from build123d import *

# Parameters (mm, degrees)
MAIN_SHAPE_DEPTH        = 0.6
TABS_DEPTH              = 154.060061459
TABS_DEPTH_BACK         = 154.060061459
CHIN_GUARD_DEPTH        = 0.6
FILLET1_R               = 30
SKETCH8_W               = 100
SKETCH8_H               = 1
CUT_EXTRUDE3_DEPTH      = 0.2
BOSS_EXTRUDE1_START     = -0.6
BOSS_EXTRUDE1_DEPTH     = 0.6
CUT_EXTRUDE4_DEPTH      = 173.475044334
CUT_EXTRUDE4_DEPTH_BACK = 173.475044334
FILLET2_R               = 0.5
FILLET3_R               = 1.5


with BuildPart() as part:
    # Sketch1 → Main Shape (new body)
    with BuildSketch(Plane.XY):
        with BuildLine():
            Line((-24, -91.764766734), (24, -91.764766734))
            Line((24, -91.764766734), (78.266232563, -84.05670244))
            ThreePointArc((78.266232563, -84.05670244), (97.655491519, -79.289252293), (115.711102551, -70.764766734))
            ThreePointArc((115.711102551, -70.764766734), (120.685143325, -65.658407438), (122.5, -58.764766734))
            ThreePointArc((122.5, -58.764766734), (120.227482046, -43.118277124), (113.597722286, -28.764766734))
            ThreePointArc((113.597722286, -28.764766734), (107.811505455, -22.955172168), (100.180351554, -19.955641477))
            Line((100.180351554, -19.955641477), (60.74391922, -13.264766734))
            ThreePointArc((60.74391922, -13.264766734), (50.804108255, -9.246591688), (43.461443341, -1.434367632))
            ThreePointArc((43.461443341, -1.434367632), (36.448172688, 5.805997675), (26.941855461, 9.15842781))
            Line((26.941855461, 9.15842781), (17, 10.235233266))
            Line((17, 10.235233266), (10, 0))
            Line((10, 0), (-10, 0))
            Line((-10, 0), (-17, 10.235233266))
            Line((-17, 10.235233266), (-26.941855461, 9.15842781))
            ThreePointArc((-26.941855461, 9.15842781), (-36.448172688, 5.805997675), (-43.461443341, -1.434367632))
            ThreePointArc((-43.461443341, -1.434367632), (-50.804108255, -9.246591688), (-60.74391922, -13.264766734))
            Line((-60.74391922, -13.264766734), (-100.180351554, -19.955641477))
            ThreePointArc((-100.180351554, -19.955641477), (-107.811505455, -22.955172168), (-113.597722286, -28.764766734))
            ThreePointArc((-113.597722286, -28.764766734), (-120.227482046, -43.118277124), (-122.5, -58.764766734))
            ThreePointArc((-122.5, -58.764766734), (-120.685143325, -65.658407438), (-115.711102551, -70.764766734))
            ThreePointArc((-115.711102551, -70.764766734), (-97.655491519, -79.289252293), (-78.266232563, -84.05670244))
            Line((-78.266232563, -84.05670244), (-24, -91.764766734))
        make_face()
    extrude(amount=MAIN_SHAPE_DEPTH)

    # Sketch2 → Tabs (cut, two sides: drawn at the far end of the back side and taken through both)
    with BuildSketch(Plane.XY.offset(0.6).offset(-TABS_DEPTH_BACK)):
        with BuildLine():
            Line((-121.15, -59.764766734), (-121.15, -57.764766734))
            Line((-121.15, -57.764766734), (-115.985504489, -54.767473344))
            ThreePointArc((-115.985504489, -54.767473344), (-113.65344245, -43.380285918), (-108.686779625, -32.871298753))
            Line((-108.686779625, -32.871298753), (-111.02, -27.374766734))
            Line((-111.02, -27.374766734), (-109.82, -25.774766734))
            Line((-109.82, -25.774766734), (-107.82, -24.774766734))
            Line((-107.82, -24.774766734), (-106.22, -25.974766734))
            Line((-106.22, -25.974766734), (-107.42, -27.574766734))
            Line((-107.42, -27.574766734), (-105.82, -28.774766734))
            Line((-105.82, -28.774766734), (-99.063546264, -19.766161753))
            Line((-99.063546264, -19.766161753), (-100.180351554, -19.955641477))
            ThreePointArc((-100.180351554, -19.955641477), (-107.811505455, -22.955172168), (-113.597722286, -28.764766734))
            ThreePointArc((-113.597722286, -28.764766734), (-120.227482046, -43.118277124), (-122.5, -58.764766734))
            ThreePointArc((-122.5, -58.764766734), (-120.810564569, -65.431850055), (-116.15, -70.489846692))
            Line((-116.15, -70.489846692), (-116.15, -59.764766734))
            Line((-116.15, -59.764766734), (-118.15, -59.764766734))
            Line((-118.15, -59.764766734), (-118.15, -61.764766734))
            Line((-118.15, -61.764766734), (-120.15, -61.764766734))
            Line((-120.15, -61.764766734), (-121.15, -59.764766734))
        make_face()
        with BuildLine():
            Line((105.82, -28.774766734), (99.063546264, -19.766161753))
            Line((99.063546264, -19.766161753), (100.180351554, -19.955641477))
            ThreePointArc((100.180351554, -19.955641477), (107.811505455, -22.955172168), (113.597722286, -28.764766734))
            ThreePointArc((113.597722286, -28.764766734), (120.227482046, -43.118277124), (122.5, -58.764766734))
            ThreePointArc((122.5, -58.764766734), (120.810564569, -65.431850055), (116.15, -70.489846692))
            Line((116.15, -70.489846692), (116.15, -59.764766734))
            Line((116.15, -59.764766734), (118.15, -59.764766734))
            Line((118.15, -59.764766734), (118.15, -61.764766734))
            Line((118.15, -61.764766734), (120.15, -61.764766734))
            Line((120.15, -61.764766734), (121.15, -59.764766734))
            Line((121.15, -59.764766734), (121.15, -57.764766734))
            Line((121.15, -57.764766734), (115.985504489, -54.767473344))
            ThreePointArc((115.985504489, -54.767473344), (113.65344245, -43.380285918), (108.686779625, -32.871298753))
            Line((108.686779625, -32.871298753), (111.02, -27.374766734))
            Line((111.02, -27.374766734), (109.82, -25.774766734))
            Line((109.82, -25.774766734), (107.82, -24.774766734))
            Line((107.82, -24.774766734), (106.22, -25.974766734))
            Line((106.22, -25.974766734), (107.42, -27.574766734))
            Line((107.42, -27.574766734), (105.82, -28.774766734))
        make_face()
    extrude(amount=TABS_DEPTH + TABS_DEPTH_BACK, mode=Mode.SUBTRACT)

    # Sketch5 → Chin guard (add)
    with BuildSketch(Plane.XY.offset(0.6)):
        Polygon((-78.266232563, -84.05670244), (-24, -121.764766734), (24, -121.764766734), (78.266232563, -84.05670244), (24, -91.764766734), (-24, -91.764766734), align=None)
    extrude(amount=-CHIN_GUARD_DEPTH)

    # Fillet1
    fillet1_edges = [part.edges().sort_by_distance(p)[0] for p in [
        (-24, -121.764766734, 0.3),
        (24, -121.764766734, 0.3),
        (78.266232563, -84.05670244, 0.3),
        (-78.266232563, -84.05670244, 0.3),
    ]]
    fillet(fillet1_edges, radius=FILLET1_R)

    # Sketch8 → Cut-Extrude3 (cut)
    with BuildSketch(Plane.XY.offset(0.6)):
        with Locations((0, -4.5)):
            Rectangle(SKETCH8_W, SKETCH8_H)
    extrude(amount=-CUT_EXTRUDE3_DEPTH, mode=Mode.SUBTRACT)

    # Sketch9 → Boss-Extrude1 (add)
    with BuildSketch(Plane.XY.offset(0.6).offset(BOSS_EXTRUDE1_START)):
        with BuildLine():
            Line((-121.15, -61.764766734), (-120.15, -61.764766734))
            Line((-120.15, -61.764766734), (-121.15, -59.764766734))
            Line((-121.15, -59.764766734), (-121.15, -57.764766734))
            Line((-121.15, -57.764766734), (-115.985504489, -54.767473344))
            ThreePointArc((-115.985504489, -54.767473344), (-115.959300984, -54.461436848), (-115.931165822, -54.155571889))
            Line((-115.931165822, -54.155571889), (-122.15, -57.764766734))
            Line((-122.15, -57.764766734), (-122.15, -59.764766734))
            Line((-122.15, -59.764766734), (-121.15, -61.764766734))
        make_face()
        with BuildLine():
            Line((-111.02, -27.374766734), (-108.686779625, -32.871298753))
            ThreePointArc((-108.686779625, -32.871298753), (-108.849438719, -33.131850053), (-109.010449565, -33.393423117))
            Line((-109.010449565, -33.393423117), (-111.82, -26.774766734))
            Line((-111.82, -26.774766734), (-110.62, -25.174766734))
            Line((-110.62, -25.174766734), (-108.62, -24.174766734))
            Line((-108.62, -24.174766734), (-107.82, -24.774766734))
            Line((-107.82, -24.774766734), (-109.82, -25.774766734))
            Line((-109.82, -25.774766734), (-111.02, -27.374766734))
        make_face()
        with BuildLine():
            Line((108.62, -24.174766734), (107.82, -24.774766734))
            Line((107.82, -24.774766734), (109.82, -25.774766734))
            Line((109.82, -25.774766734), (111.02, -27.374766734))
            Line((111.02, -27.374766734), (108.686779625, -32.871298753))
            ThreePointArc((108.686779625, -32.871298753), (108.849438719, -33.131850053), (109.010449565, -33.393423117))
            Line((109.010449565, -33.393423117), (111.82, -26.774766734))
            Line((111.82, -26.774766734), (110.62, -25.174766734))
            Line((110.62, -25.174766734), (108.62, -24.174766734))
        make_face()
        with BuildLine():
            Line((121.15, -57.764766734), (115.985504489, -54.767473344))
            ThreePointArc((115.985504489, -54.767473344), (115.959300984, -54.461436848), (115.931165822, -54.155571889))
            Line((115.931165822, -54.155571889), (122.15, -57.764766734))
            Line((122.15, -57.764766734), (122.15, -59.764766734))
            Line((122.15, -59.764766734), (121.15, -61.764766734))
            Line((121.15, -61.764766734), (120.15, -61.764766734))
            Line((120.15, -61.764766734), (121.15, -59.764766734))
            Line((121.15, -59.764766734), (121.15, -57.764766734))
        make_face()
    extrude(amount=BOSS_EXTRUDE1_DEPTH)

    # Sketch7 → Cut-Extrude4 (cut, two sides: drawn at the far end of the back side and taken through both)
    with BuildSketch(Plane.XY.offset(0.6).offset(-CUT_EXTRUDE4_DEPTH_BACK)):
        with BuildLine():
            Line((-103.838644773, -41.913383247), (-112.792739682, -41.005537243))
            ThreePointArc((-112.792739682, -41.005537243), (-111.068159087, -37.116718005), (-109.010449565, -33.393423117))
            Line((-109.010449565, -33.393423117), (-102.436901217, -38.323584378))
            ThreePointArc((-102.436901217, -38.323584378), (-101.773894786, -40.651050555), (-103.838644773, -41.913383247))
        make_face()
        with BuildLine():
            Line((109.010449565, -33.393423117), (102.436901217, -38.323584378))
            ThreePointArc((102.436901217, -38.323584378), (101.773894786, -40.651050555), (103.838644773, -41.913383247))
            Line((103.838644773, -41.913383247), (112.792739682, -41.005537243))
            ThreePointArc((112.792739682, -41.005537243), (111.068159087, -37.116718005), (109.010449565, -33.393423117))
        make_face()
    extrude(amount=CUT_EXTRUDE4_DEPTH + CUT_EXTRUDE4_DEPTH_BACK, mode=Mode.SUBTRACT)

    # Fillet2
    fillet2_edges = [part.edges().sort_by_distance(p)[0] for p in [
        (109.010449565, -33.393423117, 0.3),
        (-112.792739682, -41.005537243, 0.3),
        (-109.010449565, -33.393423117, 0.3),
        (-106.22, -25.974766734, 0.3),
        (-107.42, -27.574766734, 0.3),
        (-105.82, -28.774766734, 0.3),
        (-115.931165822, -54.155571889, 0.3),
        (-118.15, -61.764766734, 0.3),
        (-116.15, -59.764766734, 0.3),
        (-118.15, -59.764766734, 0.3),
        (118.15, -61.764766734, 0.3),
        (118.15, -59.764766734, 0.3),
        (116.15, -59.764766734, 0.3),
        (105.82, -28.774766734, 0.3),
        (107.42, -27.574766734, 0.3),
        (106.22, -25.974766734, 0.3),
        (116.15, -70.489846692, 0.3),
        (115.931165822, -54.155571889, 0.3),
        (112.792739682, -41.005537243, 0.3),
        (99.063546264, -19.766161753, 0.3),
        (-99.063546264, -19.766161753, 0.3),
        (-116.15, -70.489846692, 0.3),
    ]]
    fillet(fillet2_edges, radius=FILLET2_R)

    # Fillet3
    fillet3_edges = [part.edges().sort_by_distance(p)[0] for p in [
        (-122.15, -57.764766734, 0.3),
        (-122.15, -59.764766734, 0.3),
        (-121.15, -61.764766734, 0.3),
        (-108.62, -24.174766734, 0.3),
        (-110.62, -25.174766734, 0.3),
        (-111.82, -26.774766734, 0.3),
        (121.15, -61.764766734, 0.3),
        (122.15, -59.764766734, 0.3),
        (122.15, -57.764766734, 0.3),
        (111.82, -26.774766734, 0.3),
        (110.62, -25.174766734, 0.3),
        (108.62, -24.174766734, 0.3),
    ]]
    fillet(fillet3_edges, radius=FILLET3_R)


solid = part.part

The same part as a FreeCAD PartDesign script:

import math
import FreeCAD as App
import Part
import Sketcher
from FreeCAD import Vector


def edges_at(feature, points):
    """Names of the edges that pass closest to the given points."""
    edges = feature.Shape.Edges
    near = lambda p: min(range(len(edges)), key=lambda i: edges[i].distToShape(Part.Vertex(*p))[0])
    return sorted({f"Edge{near(p) + 1}" for p in points})

doc = App.newDocument("Part")
body = doc.addObject("PartDesign::Body", "Body")

sketch1 = body.newObject("Sketcher::SketchObject", "Sketch")
sketch1.AttachmentSupport = (doc.getObject("XY_Plane"), [""])
sketch1.MapMode = "FlatFace"
sketch1.addGeometry(Part.LineSegment(Vector(-24, -92, 0), Vector(24, -92, 0)), False)
sketch1.addGeometry(Part.LineSegment(Vector(24, -92, 0), Vector(78, -84, 0)), False)
sketch1.addGeometry(Part.ArcOfCircle(Part.Circle(Vector(64, 15, 0), Vector(0, 0, 1), 100), math.radians(-82), math.radians(-59)), False)
sketch1.addGeometry(Part.ArcOfCircle(Part.Circle(Vector(109, -59, 0), Vector(0, 0, 1), 14), math.radians(-59), math.radians(0)), False)
sketch1.addGeometry(Part.ArcOfCircle(Part.Circle(Vector(68, -59, 0), Vector(0, 0, 1), 55), math.radians(0), math.radians(33)), False)
sketch1.addGeometry(Part.ArcOfCircle(Part.Circle(Vector(97, -40, 0), Vector(0, 0, 1), 20), math.radians(33), math.radians(80)), False)
sketch1.addGeometry(Part.LineSegment(Vector(100, -20, 0), Vector(61, -13, 0)), False)
sketch1.addGeometry(Part.ArcOfCircle(Part.Circle(Vector(65, 11, 0), Vector(0, 0, 1), 25), math.radians(-149), math.radians(-100)), False)
sketch1.addGeometry(Part.ArcOfCircle(Part.Circle(Vector(25, -13, 0), Vector(0, 0, 1), 22), math.radians(31), math.radians(84)), False)
sketch1.addGeometry(Part.LineSegment(Vector(27, 9, 0), Vector(17, 10, 0)), False)
sketch1.addGeometry(Part.LineSegment(Vector(17, 10, 0), Vector(10, 0, 0)), False)
sketch1.addGeometry(Part.LineSegment(Vector(10, 0, 0), Vector(-10, 0, 0)), False)
sketch1.addGeometry(Part.LineSegment(Vector(-10, 0, 0), Vector(-17, 10, 0)), False)
sketch1.addGeometry(Part.LineSegment(Vector(-17, 10, 0), Vector(-27, 9, 0)), False)
sketch1.addGeometry(Part.ArcOfCircle(Part.Circle(Vector(-25, -13, 0), Vector(0, 0, 1), 22), math.radians(96), math.radians(149)), False)
sketch1.addGeometry(Part.ArcOfCircle(Part.Circle(Vector(-65, 11, 0), Vector(0, 0, 1), 25), math.radians(-80), math.radians(-31)), False)
sketch1.addGeometry(Part.LineSegment(Vector(-61, -13, 0), Vector(-100, -20, 0)), False)
sketch1.addGeometry(Part.ArcOfCircle(Part.Circle(Vector(-97, -40, 0), Vector(0, 0, 1), 20), math.radians(100), math.radians(147)), False)
sketch1.addGeometry(Part.ArcOfCircle(Part.Circle(Vector(-68, -59, 0), Vector(0, 0, 1), 55), math.radians(147), math.radians(180)), False)
sketch1.addGeometry(Part.ArcOfCircle(Part.Circle(Vector(-109, -59, 0), Vector(0, 0, 1), 14), math.radians(180), math.radians(239)), False)
sketch1.addGeometry(Part.ArcOfCircle(Part.Circle(Vector(-64, 15, 0), Vector(0, 0, 1), 100), math.radians(-121), math.radians(-98)), False)
sketch1.addGeometry(Part.LineSegment(Vector(-78, -84, 0), Vector(-24, -92, 0)), False)
sketch1.addConstraint(Sketcher.Constraint("Coincident", 0, 2, 1, 1))
sketch1.addConstraint(Sketcher.Constraint("Tangent", 1, 2, 2, 1))
sketch1.addConstraint(Sketcher.Constraint("Tangent", 2, 2, 3, 1))
sketch1.addConstraint(Sketcher.Constraint("Tangent", 3, 2, 4, 1))
sketch1.addConstraint(Sketcher.Constraint("Tangent", 4, 2, 5, 1))
sketch1.addConstraint(Sketcher.Constraint("Tangent", 5, 2, 6, 1))
sketch1.addConstraint(Sketcher.Constraint("Tangent", 6, 2, 7, 2))
sketch1.addConstraint(Sketcher.Constraint("Tangent", 7, 1, 8, 1))
sketch1.addConstraint(Sketcher.Constraint("Tangent", 8, 2, 9, 1))
sketch1.addConstraint(Sketcher.Constraint("Coincident", 9, 2, 10, 1))
sketch1.addConstraint(Sketcher.Constraint("Coincident", 10, 2, 11, 1))
sketch1.addConstraint(Sketcher.Constraint("Coincident", 11, 2, 12, 1))
sketch1.addConstraint(Sketcher.Constraint("Coincident", 12, 2, 13, 1))
sketch1.addConstraint(Sketcher.Constraint("Tangent", 13, 2, 14, 1))
sketch1.addConstraint(Sketcher.Constraint("Tangent", 14, 2, 15, 2))
sketch1.addConstraint(Sketcher.Constraint("Tangent", 15, 1, 16, 1))
sketch1.addConstraint(Sketcher.Constraint("Tangent", 16, 2, 17, 1))
sketch1.addConstraint(Sketcher.Constraint("Tangent", 17, 2, 18, 1))
sketch1.addConstraint(Sketcher.Constraint("Tangent", 18, 2, 19, 1))
sketch1.addConstraint(Sketcher.Constraint("Tangent", 19, 2, 20, 1))
sketch1.addConstraint(Sketcher.Constraint("Tangent", 20, 2, 21, 1))
sketch1.addConstraint(Sketcher.Constraint("Coincident", 21, 2, 0, 1))
sketch1.addConstraint(Sketcher.Constraint("Horizontal", 0))
sketch1.addConstraint(Sketcher.Constraint("Horizontal", 11))
sketch1.addConstraint(Sketcher.Constraint("Equal", 8, 14))
sketch1.addConstraint(Sketcher.Constraint("Equal", 7, 15))
sketch1.addConstraint(Sketcher.Constraint("Equal", 5, 17))
sketch1.addConstraint(Sketcher.Constraint("Equal", 4, 18))
sketch1.addConstraint(Sketcher.Constraint("Equal", 3, 19))
sketch1.addConstraint(Sketcher.Constraint("Equal", 2, 20))
sketch1.addConstraint(Sketcher.Constraint("Symmetric", 10, 2, 11, 2, -1, 1))
sketch1.addConstraint(Sketcher.Constraint("Symmetric", 8, 3, 14, 3, -2))
sketch1.addConstraint(Sketcher.Constraint("Symmetric", 5, 3, 17, 3, -2))
sketch1.addConstraint(Sketcher.Constraint("Symmetric", 3, 3, 19, 3, -2))
sketch1.addConstraint(Sketcher.Constraint("Symmetric", 9, 2, 12, 2, -2))
sketch1.addConstraint(Sketcher.Constraint("Symmetric", 1, 2, 20, 2, -2))
sketch1.addConstraint(Sketcher.Constraint("Horizontal", 3, 3, 4, 3))
sketch1.addConstraint(Sketcher.Constraint("Horizontal", 7, 3, 15, 3))
sketch1.addConstraint(Sketcher.Constraint("Radius", 2, 100.0))
sketch1.addConstraint(Sketcher.Constraint("Radius", 3, 14.0))
sketch1.addConstraint(Sketcher.Constraint("Radius", 4, 55.0))
sketch1.addConstraint(Sketcher.Constraint("Radius", 5, 20.0))
sketch1.addConstraint(Sketcher.Constraint("Radius", 7, 25.0))
sketch1.addConstraint(Sketcher.Constraint("Radius", 8, 22.0))
sketch1.addConstraint(Sketcher.Constraint("DistanceX", 0, 1, 0, 2, 48.0))
sketch1.addConstraint(Sketcher.Constraint("DistanceX", 11, 2, 11, 1, 20.0))
sketch1.addConstraint(Sketcher.Constraint("Distance", 6, 40.0))
sketch1.addConstraint(Sketcher.Constraint("Distance", 9, 10.0))
sketch1.addConstraint(Sketcher.Constraint("DistanceX", -1, 1, 9, 2, 17.0))
sketch1.addConstraint(Sketcher.Constraint("DistanceX", 18, 3, 4, 3, 135.0))
sketch1.addConstraint(Sketcher.Constraint("DistanceY", 0, 2, 4, 3, 33.0))
sketch1.addConstraint(Sketcher.Constraint("DistanceY", 3, 3, 4, 2, 30.0))
sketch1.addConstraint(Sketcher.Constraint("DistanceY", 19, 2, 19, 3, 12.0))
sketch1.addConstraint(Sketcher.Constraint("Distance", 10, 12.4))
sketch1.addConstraint(Sketcher.Constraint("DistanceY", 17, 2, 15, 1, 15.5))
sketch1.addConstraint(Sketcher.Constraint("DistanceX", 14, 3, 7, 3, 89.498599))
pad1 = body.newObject("PartDesign::Pad", "Pad")
pad1.Profile = sketch1
pad1.Length = 0.6

sketch2 = body.newObject("Sketcher::SketchObject", "Sketch001")
sketch2.AttachmentSupport = (doc.getObject("XY_Plane"), [""])
sketch2.MapMode = "FlatFace"
sketch2.AttachmentOffset = App.Placement(Vector(0, 0, 0.6), App.Rotation())
sketch2.addGeometry(Part.LineSegment(Vector(-121.2, -59.8, 0), Vector(-121.2, -57.8, 0)), False)
sketch2.addGeometry(Part.LineSegment(Vector(-121.2, -57.8, 0), Vector(-116, -54.8, 0)), False)
sketch2.addGeometry(Part.ArcOfCircle(Part.Circle(Vector(-67.5, -58.8, 0), Vector(0, 0, 1), 48.7), math.radians(148), math.radians(175)), False)
sketch2.addGeometry(Part.LineSegment(Vector(-108.7, -32.9, 0), Vector(-111, -27.4, 0)), False)
sketch2.addGeometry(Part.LineSegment(Vector(-111, -27.4, 0), Vector(-109.8, -25.8, 0)), False)
sketch2.addGeometry(Part.LineSegment(Vector(-109.8, -25.8, 0), Vector(-107.8, -24.8, 0)), False)
sketch2.addGeometry(Part.LineSegment(Vector(-107.8, -24.8, 0), Vector(-106.2, -26, 0)), False)
sketch2.addGeometry(Part.LineSegment(Vector(-106.2, -26, 0), Vector(-107.4, -27.6, 0)), False)
sketch2.addGeometry(Part.LineSegment(Vector(-107.4, -27.6, 0), Vector(-105.8, -28.8, 0)), False)
sketch2.addGeometry(Part.LineSegment(Vector(-105.8, -28.8, 0), Vector(-99.1, -19.8, 0)), False)
sketch2.addGeometry(Part.LineSegment(Vector(-99.1, -19.8, 0), Vector(-100.2, -20, 0)), False)
sketch2.addGeometry(Part.ArcOfCircle(Part.Circle(Vector(-96.8, -39.7, 0), Vector(0, 0, 1), 20), math.radians(100), math.radians(147)), False)
sketch2.addGeometry(Part.ArcOfCircle(Part.Circle(Vector(-67.5, -58.8, 0), Vector(0, 0, 1), 55), math.radians(147), math.radians(180)), False)
sketch2.addGeometry(Part.ArcOfCircle(Part.Circle(Vector(-108.5, -58.8, 0), Vector(0, 0, 1), 14), math.radians(180), math.radians(237)), False)
sketch2.addGeometry(Part.LineSegment(Vector(-116.2, -70.5, 0), Vector(-116.2, -59.8, 0)), False)
sketch2.addGeometry(Part.LineSegment(Vector(-116.2, -59.8, 0), Vector(-118.2, -59.8, 0)), False)
sketch2.addGeometry(Part.LineSegment(Vector(-118.2, -59.8, 0), Vector(-118.2, -61.8, 0)), False)
sketch2.addGeometry(Part.LineSegment(Vector(-118.2, -61.8, 0), Vector(-120.2, -61.8, 0)), False)
sketch2.addGeometry(Part.LineSegment(Vector(-120.2, -61.8, 0), Vector(-121.2, -59.8, 0)), False)
sketch2.addGeometry(Part.LineSegment(Vector(99.1, -19.8, 0), Vector(105.8, -28.8, 0)), False)
sketch2.addGeometry(Part.LineSegment(Vector(105.8, -28.8, 0), Vector(107.4, -27.6, 0)), False)
sketch2.addGeometry(Part.LineSegment(Vector(107.4, -27.6, 0), Vector(106.2, -26, 0)), False)
sketch2.addGeometry(Part.LineSegment(Vector(106.2, -26, 0), Vector(107.8, -24.8, 0)), False)
sketch2.addGeometry(Part.LineSegment(Vector(107.8, -24.8, 0), Vector(109.8, -25.8, 0)), False)
sketch2.addGeometry(Part.LineSegment(Vector(109.8, -25.8, 0), Vector(111, -27.4, 0)), False)
sketch2.addGeometry(Part.LineSegment(Vector(111, -27.4, 0), Vector(108.7, -32.9, 0)), False)
sketch2.addGeometry(Part.ArcOfCircle(Part.Circle(Vector(67.5, -58.8, 0), Vector(0, 0, 1), 48.7), math.radians(5), math.radians(32)), False)
sketch2.addGeometry(Part.LineSegment(Vector(116, -54.8, 0), Vector(121.2, -57.8, 0)), False)
sketch2.addGeometry(Part.LineSegment(Vector(121.2, -57.8, 0), Vector(121.2, -59.8, 0)), False)
sketch2.addGeometry(Part.LineSegment(Vector(121.2, -59.8, 0), Vector(120.2, -61.8, 0)), False)
sketch2.addGeometry(Part.LineSegment(Vector(120.2, -61.8, 0), Vector(118.2, -61.8, 0)), False)
sketch2.addGeometry(Part.LineSegment(Vector(118.2, -61.8, 0), Vector(118.2, -59.8, 0)), False)
sketch2.addGeometry(Part.LineSegment(Vector(118.2, -59.8, 0), Vector(116.2, -59.8, 0)), False)
sketch2.addGeometry(Part.LineSegment(Vector(116.2, -59.8, 0), Vector(116.2, -70.5, 0)), False)
sketch2.addGeometry(Part.ArcOfCircle(Part.Circle(Vector(108.5, -58.8, 0), Vector(0, 0, 1), 14), math.radians(-57), math.radians(0)), False)
sketch2.addGeometry(Part.ArcOfCircle(Part.Circle(Vector(67.5, -58.8, 0), Vector(0, 0, 1), 55), math.radians(0), math.radians(33)), False)
sketch2.addGeometry(Part.ArcOfCircle(Part.Circle(Vector(96.8, -39.7, 0), Vector(0, 0, 1), 20), math.radians(33), math.radians(80)), False)
sketch2.addGeometry(Part.LineSegment(Vector(100.2, -20, 0), Vector(99.1, -19.8, 0)), False)
sketch2.addConstraint(Sketcher.Constraint("Coincident", 0, 2, 1, 1))
sketch2.addConstraint(Sketcher.Constraint("Coincident", 1, 2, 2, 2))
sketch2.addConstraint(Sketcher.Constraint("Coincident", 2, 1, 3, 1))
sketch2.addConstraint(Sketcher.Constraint("Coincident", 3, 2, 4, 1))
sketch2.addConstraint(Sketcher.Constraint("Coincident", 4, 2, 5, 1))
sketch2.addConstraint(Sketcher.Constraint("Coincident", 5, 2, 6, 1))
sketch2.addConstraint(Sketcher.Constraint("Coincident", 6, 2, 7, 1))
sketch2.addConstraint(Sketcher.Constraint("Coincident", 7, 2, 8, 1))
sketch2.addConstraint(Sketcher.Constraint("Coincident", 8, 2, 9, 1))
sketch2.addConstraint(Sketcher.Constraint("Coincident", 9, 2, 10, 1))
sketch2.addConstraint(Sketcher.Constraint("Tangent", 10, 2, 11, 1))
sketch2.addConstraint(Sketcher.Constraint("Tangent", 11, 2, 12, 1))
sketch2.addConstraint(Sketcher.Constraint("Tangent", 12, 2, 13, 1))
sketch2.addConstraint(Sketcher.Constraint("Coincident", 13, 2, 14, 1))
sketch2.addConstraint(Sketcher.Constraint("Coincident", 14, 2, 15, 1))
sketch2.addConstraint(Sketcher.Constraint("Coincident", 15, 2, 16, 1))
sketch2.addConstraint(Sketcher.Constraint("Coincident", 16, 2, 17, 1))
sketch2.addConstraint(Sketcher.Constraint("Coincident", 17, 2, 18, 1))
sketch2.addConstraint(Sketcher.Constraint("Coincident", 18, 2, 0, 1))
sketch2.addConstraint(Sketcher.Constraint("Coincident", 19, 2, 20, 1))
sketch2.addConstraint(Sketcher.Constraint("Coincident", 20, 2, 21, 1))
sketch2.addConstraint(Sketcher.Constraint("Coincident", 21, 2, 22, 1))
sketch2.addConstraint(Sketcher.Constraint("Coincident", 22, 2, 23, 1))
sketch2.addConstraint(Sketcher.Constraint("Coincident", 23, 2, 24, 1))
sketch2.addConstraint(Sketcher.Constraint("Coincident", 24, 2, 25, 1))
sketch2.addConstraint(Sketcher.Constraint("Coincident", 25, 2, 26, 2))
sketch2.addConstraint(Sketcher.Constraint("Coincident", 26, 1, 27, 1))
sketch2.addConstraint(Sketcher.Constraint("Coincident", 27, 2, 28, 1))
sketch2.addConstraint(Sketcher.Constraint("Coincident", 28, 2, 29, 1))
sketch2.addConstraint(Sketcher.Constraint("Coincident", 29, 2, 30, 1))
sketch2.addConstraint(Sketcher.Constraint("Coincident", 30, 2, 31, 1))
sketch2.addConstraint(Sketcher.Constraint("Coincident", 31, 2, 32, 1))
sketch2.addConstraint(Sketcher.Constraint("Coincident", 32, 2, 33, 1))
sketch2.addConstraint(Sketcher.Constraint("Coincident", 33, 2, 34, 1))
sketch2.addConstraint(Sketcher.Constraint("Tangent", 34, 2, 35, 1))
sketch2.addConstraint(Sketcher.Constraint("Tangent", 35, 2, 36, 1))
sketch2.addConstraint(Sketcher.Constraint("Tangent", 36, 2, 37, 1))
sketch2.addConstraint(Sketcher.Constraint("Coincident", 37, 2, 19, 1))
sketch2.addConstraint(Sketcher.Constraint("Vertical", 0))
sketch2.addConstraint(Sketcher.Constraint("Vertical", 14))
sketch2.addConstraint(Sketcher.Constraint("Horizontal", 15))
sketch2.addConstraint(Sketcher.Constraint("Vertical", 16))
sketch2.addConstraint(Sketcher.Constraint("Horizontal", 17))
sketch2.addConstraint(Sketcher.Constraint("Vertical", 28))
sketch2.addConstraint(Sketcher.Constraint("Horizontal", 30))
sketch2.addConstraint(Sketcher.Constraint("Vertical", 31))
sketch2.addConstraint(Sketcher.Constraint("Horizontal", 32))
sketch2.addConstraint(Sketcher.Constraint("Vertical", 33))
sketch2.addConstraint(Sketcher.Constraint("Coincident", 12, 3, 2, 3))
sketch2.addConstraint(Sketcher.Constraint("Coincident", 35, 3, 26, 3))
sketch2.addConstraint(Sketcher.Constraint("Equal", 2, 26))
sketch2.addConstraint(Sketcher.Constraint("Equal", 13, 34))
sketch2.addConstraint(Sketcher.Constraint("Equal", 12, 35))
sketch2.addConstraint(Sketcher.Constraint("Equal", 11, 36))
sketch2.addConstraint(Sketcher.Constraint("Symmetric", 2, 3, 26, 3, -2))
sketch2.addConstraint(Sketcher.Constraint("Symmetric", 8, 2, 19, 2, -2))
sketch2.addConstraint(Sketcher.Constraint("Symmetric", 7, 2, 20, 2, -2))
sketch2.addConstraint(Sketcher.Constraint("Symmetric", 6, 2, 21, 2, -2))
sketch2.addConstraint(Sketcher.Constraint("Symmetric", 5, 2, 22, 2, -2))
sketch2.addConstraint(Sketcher.Constraint("Symmetric", 4, 2, 23, 2, -2))
sketch2.addConstraint(Sketcher.Constraint("Symmetric", 3, 2, 24, 2, -2))
sketch2.addConstraint(Sketcher.Constraint("Symmetric", 0, 2, 27, 2, -2))
sketch2.addConstraint(Sketcher.Constraint("Symmetric", 17, 2, 29, 2, -2))
sketch2.addConstraint(Sketcher.Constraint("Symmetric", 15, 2, 31, 2, -2))
sketch2.addConstraint(Sketcher.Constraint("Symmetric", 13, 2, 33, 2, -2))
sketch2.addConstraint(Sketcher.Constraint("Symmetric", 10, 2, 36, 2, -2))
sketch2.addConstraint(Sketcher.Constraint("Perpendicular", 4, 6))
sketch2.addConstraint(Sketcher.Constraint("Perpendicular", 6, 7))
sketch2.addConstraint(Sketcher.Constraint("Perpendicular", 7, 8))
sketch2.addConstraint(Sketcher.Constraint("Perpendicular", 8, 9))
sketch2.addConstraint(Sketcher.Constraint("Perpendicular", 5, 18))
sketch2.addConstraint(Sketcher.Constraint("Perpendicular", 19, 20))
sketch2.addConstraint(Sketcher.Constraint("Perpendicular", 23, 29))
sketch2.addConstraint(Sketcher.Constraint("Horizontal", 12, 3, 13, 3))
sketch2.addConstraint(Sketcher.Constraint("Horizontal", 15, 2, 18, 2))
sketch2.addConstraint(Sketcher.Constraint("Horizontal", 2, 1, 25, 2))
sketch2.addConstraint(Sketcher.Constraint("Horizontal", 1, 2, 26, 1))
sketch2.addConstraint(Sketcher.Constraint("Equal", 15, 17))
sketch2.addConstraint(Sketcher.Constraint("Equal", 32, 0))
sketch2.addConstraint(Sketcher.Constraint("Equal", 0, 16))
sketch2.addConstraint(Sketcher.Constraint("Equal", 1, 3))
sketch2.addConstraint(Sketcher.Constraint("Equal", 4, 6))
sketch2.addConstraint(Sketcher.Constraint("Equal", 6, 7))
sketch2.addConstraint(Sketcher.Constraint("Equal", 7, 8))
sketch2.addConstraint(Sketcher.Constraint("Equal", 5, 18))
sketch2.addConstraint(Sketcher.Constraint("Radius", 11, 20.0))
sketch2.addConstraint(Sketcher.Constraint("Radius", 12, 55.0))
sketch2.addConstraint(Sketcher.Constraint("Radius", 13, 14.0))
sketch2.addConstraint(Sketcher.Constraint("DistanceX", 15, 2, 15, 1, 2.0))
sketch2.addConstraint(Sketcher.Constraint("Radius", 2, 48.65))
sketch2.addConstraint(Sketcher.Constraint("Distance", 4, 2.0))
sketch2.addConstraint(Sketcher.Constraint("DistanceX", 2, 3, 26, 3, 135.0))
sketch2.addConstraint(Sketcher.Constraint("DistanceY", 13, 3, 0, 2, 1.0))
sketch2.addConstraint(Sketcher.Constraint("DistanceY", 4, 2, 5, 2, 1.0))
sketch2.addConstraint(Sketcher.Constraint("DistanceX", 5, 2, 8, 2, 2.0))
sketch2.addConstraint(Sketcher.Constraint("DistanceY", 12, 2, 11, 2, 30.0))
sketch2.addConstraint(Sketcher.Constraint("DistanceX", 0, 2, -1, 1, 121.15))
sketch2.addConstraint(Sketcher.Constraint("DistanceX", 3, 2, -1, 1, 111.02))
sketch2.addConstraint(Sketcher.Constraint("DistanceY", 13, 3, 3, 2, 31.39))
sketch2.addConstraint(Sketcher.Constraint("DistanceY", 2, 1, -1, 1, 32.871299))
sketch2.addConstraint(Sketcher.Constraint("DistanceX", 2, 1, -1, 1, 108.68678))
sketch2.addConstraint(Sketcher.Constraint("DistanceY", 9, 2, -1, 1, 19.766162))
pocket1 = body.newObject("PartDesign::Pocket", "Pocket")
pocket1.Profile = sketch2
pocket1.Type = "ThroughAll"
pocket1.Midplane = True

sketch3 = body.newObject("Sketcher::SketchObject", "Sketch002")
sketch3.AttachmentSupport = (doc.getObject("XY_Plane"), [""])
sketch3.MapMode = "FlatFace"
sketch3.AttachmentOffset = App.Placement(Vector(0, 0, 0.6), App.Rotation())
sketch3.addGeometry(Part.LineSegment(Vector(-78, -84, 0), Vector(-24, -122, 0)), False)
sketch3.addGeometry(Part.LineSegment(Vector(-24, -122, 0), Vector(24, -122, 0)), False)
sketch3.addGeometry(Part.LineSegment(Vector(24, -122, 0), Vector(78, -84, 0)), False)
sketch3.addGeometry(Part.LineSegment(Vector(78, -84, 0), Vector(24, -92, 0)), False)
sketch3.addGeometry(Part.LineSegment(Vector(24, -92, 0), Vector(-24, -92, 0)), False)
sketch3.addGeometry(Part.LineSegment(Vector(-24, -92, 0), Vector(-78, -84, 0)), False)
sketch3.addConstraint(Sketcher.Constraint("Coincident", 0, 2, 1, 1))
sketch3.addConstraint(Sketcher.Constraint("Coincident", 1, 2, 2, 1))
sketch3.addConstraint(Sketcher.Constraint("Coincident", 2, 2, 3, 1))
sketch3.addConstraint(Sketcher.Constraint("Coincident", 3, 2, 4, 1))
sketch3.addConstraint(Sketcher.Constraint("Coincident", 4, 2, 5, 1))
sketch3.addConstraint(Sketcher.Constraint("Coincident", 5, 2, 0, 1))
sketch3.addConstraint(Sketcher.Constraint("Horizontal", 1))
sketch3.addConstraint(Sketcher.Constraint("Horizontal", 4))
sketch3.addConstraint(Sketcher.Constraint("Symmetric", 2, 2, 5, 2, -2))
sketch3.addConstraint(Sketcher.Constraint("Vertical", 1, 2, 3, 2))
sketch3.addConstraint(Sketcher.Constraint("Vertical", 0, 2, 4, 2))
sketch3.addConstraint(Sketcher.Constraint("Equal", 0, 2))
sketch3.addConstraint(Sketcher.Constraint("DistanceX", 1, 1, 1, 2, 48.0))
sketch3.addConstraint(Sketcher.Constraint("DistanceY", 1, 2, 3, 2, 30.0))
sketch3.addConstraint(Sketcher.Constraint("Distance", 0, 66.081178))
sketch3.addConstraint(Sketcher.Constraint("Distance", 3, 54.810932))
sketch3.addConstraint(Sketcher.Constraint("DistanceY", 0, 2, -1, 1, 121.764767))
pad2 = body.newObject("PartDesign::Pad", "Pad001")
pad2.Profile = sketch3
pad2.Length = 0.6
pad2.Reversed = True
doc.recompute()

fillet = body.newObject("PartDesign::Fillet", "Fillet")
fillet.Base = (pad2, edges_at(pad2, [
    (-24, -121.765, 0.3),
    (24, -121.765, 0.3),
    (78.266, -84.057, 0.3),
    (-78.266, -84.057, 0.3),
]))
fillet.Radius = 30

sketch4 = body.newObject("Sketcher::SketchObject", "Sketch003")
sketch4.AttachmentSupport = (doc.getObject("XY_Plane"), [""])
sketch4.MapMode = "FlatFace"
sketch4.AttachmentOffset = App.Placement(Vector(0, 0, 0.6), App.Rotation())
sketch4.addGeometry(Part.LineSegment(Vector(-50, -4, 0), Vector(-50, -5, 0)), False)
sketch4.addGeometry(Part.LineSegment(Vector(-50, -5, 0), Vector(50, -5, 0)), False)
sketch4.addGeometry(Part.LineSegment(Vector(50, -5, 0), Vector(50, -4, 0)), False)
sketch4.addGeometry(Part.LineSegment(Vector(50, -4, 0), Vector(-50, -4, 0)), False)
sketch4.addConstraint(Sketcher.Constraint("Coincident", 0, 2, 1, 1))
sketch4.addConstraint(Sketcher.Constraint("Coincident", 1, 2, 2, 1))
sketch4.addConstraint(Sketcher.Constraint("Coincident", 2, 2, 3, 1))
sketch4.addConstraint(Sketcher.Constraint("Coincident", 3, 2, 0, 1))
sketch4.addConstraint(Sketcher.Constraint("Vertical", 0))
sketch4.addConstraint(Sketcher.Constraint("Horizontal", 1))
sketch4.addConstraint(Sketcher.Constraint("Vertical", 2))
sketch4.addConstraint(Sketcher.Constraint("Horizontal", 3))
sketch4.addConstraint(Sketcher.Constraint("DistanceX", 1, 1, 1, 2, 100.0))
sketch4.addConstraint(Sketcher.Constraint("DistanceY", 0, 2, 0, 1, 1.0))
sketch4.addConstraint(Sketcher.Constraint("DistanceX", 0, 2, -1, 1, 50.0))
sketch4.addConstraint(Sketcher.Constraint("DistanceY", 0, 2, -1, 1, 5.0))
pocket2 = body.newObject("PartDesign::Pocket", "Pocket001")
pocket2.Profile = sketch4
pocket2.Length = 0.2

sketch5 = body.newObject("Sketcher::SketchObject", "Sketch004")
sketch5.AttachmentSupport = (doc.getObject("XY_Plane"), [""])
sketch5.MapMode = "FlatFace"
sketch5.addGeometry(Part.LineSegment(Vector(-121.15, -61.764767, 0), Vector(-120.15, -61.764767, 0)), False)
sketch5.addGeometry(Part.LineSegment(Vector(-120.15, -61.764767, 0), Vector(-121.15, -59.764767, 0)), False)
sketch5.addGeometry(Part.LineSegment(Vector(-121.15, -59.764767, 0), Vector(-121.15, -57.764767, 0)), False)
sketch5.addGeometry(Part.LineSegment(Vector(-121.15, -57.764767, 0), Vector(-115.985504, -54.767473, 0)), False)
sketch5.addGeometry(Part.ArcOfCircle(Part.Circle(Vector(-67.499983, -58.764768, 0), Vector(0, 0, 1), 48.650017), math.radians(174.563534), math.radians(175.287019)), False)
sketch5.addGeometry(Part.LineSegment(Vector(-115.931166, -54.155572, 0), Vector(-122.15, -57.764767, 0)), False)
sketch5.addGeometry(Part.LineSegment(Vector(-122.15, -57.764767, 0), Vector(-122.15, -59.764767, 0)), False)
sketch5.addGeometry(Part.LineSegment(Vector(-122.15, -59.764767, 0), Vector(-121.15, -61.764767, 0)), False)
sketch5.addGeometry(Part.LineSegment(Vector(-108.68678, -32.871299, 0), Vector(-111.02, -27.374767, 0)), False)
sketch5.addGeometry(Part.LineSegment(Vector(-111.02, -27.374767, 0), Vector(-109.82, -25.774767, 0)), False)
sketch5.addGeometry(Part.LineSegment(Vector(-109.82, -25.774767, 0), Vector(-107.82, -24.774767, 0)), False)
sketch5.addGeometry(Part.LineSegment(Vector(-107.82, -24.774767, 0), Vector(-108.62, -24.174767, 0)), False)
sketch5.addGeometry(Part.LineSegment(Vector(-108.62, -24.174767, 0), Vector(-110.62, -25.174767, 0)), False)
sketch5.addGeometry(Part.LineSegment(Vector(-110.62, -25.174767, 0), Vector(-111.82, -26.774767, 0)), False)
sketch5.addGeometry(Part.LineSegment(Vector(-111.82, -26.774767, 0), Vector(-109.01045, -33.393423, 0)), False)
sketch5.addGeometry(Part.ArcOfCircle(Part.Circle(Vector(-67.499983, -58.764777, 0), Vector(0, 0, 1), 48.65002), math.radians(147.843083), math.radians(148.566569)), False)
sketch5.addGeometry(Part.LineSegment(Vector(108.62, -24.174767, 0), Vector(107.82, -24.774767, 0)), False)
sketch5.addGeometry(Part.LineSegment(Vector(107.82, -24.774767, 0), Vector(109.82, -25.774767, 0)), False)
sketch5.addGeometry(Part.LineSegment(Vector(109.82, -25.774767, 0), Vector(111.02, -27.374767, 0)), False)
sketch5.addGeometry(Part.LineSegment(Vector(111.02, -27.374767, 0), Vector(108.68678, -32.871299, 0)), False)
sketch5.addGeometry(Part.ArcOfCircle(Part.Circle(Vector(67.499983, -58.764777, 0), Vector(0, 0, 1), 48.65002), math.radians(31.433431), math.radians(32.156917)), False)
sketch5.addGeometry(Part.LineSegment(Vector(109.01045, -33.393423, 0), Vector(111.82, -26.774767, 0)), False)
sketch5.addGeometry(Part.LineSegment(Vector(111.82, -26.774767, 0), Vector(110.62, -25.174767, 0)), False)
sketch5.addGeometry(Part.LineSegment(Vector(110.62, -25.174767, 0), Vector(108.62, -24.174767, 0)), False)
sketch5.addGeometry(Part.LineSegment(Vector(115.985504, -54.767473, 0), Vector(121.15, -57.764767, 0)), False)
sketch5.addGeometry(Part.LineSegment(Vector(121.15, -57.764767, 0), Vector(121.15, -59.764767, 0)), False)
sketch5.addGeometry(Part.LineSegment(Vector(121.15, -59.764767, 0), Vector(120.15, -61.764767, 0)), False)
sketch5.addGeometry(Part.LineSegment(Vector(120.15, -61.764767, 0), Vector(121.15, -61.764767, 0)), False)
sketch5.addGeometry(Part.LineSegment(Vector(121.15, -61.764767, 0), Vector(122.15, -59.764767, 0)), False)
sketch5.addGeometry(Part.LineSegment(Vector(122.15, -59.764767, 0), Vector(122.15, -57.764767, 0)), False)
sketch5.addGeometry(Part.LineSegment(Vector(122.15, -57.764767, 0), Vector(115.931166, -54.155572, 0)), False)
sketch5.addGeometry(Part.ArcOfCircle(Part.Circle(Vector(67.499983, -58.764768, 0), Vector(0, 0, 1), 48.650017), math.radians(4.712981), math.radians(5.436466)), False)
sketch5.addConstraint(Sketcher.Constraint("Coincident", 0, 2, 1, 1))
sketch5.addConstraint(Sketcher.Constraint("Coincident", 1, 2, 2, 1))
sketch5.addConstraint(Sketcher.Constraint("Coincident", 2, 2, 3, 1))
sketch5.addConstraint(Sketcher.Constraint("Coincident", 3, 2, 4, 2))
sketch5.addConstraint(Sketcher.Constraint("Coincident", 4, 1, 5, 1))
sketch5.addConstraint(Sketcher.Constraint("Coincident", 5, 2, 6, 1))
sketch5.addConstraint(Sketcher.Constraint("Coincident", 6, 2, 7, 1))
sketch5.addConstraint(Sketcher.Constraint("Coincident", 7, 2, 0, 1))
sketch5.addConstraint(Sketcher.Constraint("Coincident", 8, 2, 9, 1))
sketch5.addConstraint(Sketcher.Constraint("Coincident", 9, 2, 10, 1))
sketch5.addConstraint(Sketcher.Constraint("Coincident", 10, 2, 11, 1))
sketch5.addConstraint(Sketcher.Constraint("Coincident", 11, 2, 12, 1))
sketch5.addConstraint(Sketcher.Constraint("Coincident", 12, 2, 13, 1))
sketch5.addConstraint(Sketcher.Constraint("Coincident", 13, 2, 14, 1))
sketch5.addConstraint(Sketcher.Constraint("Coincident", 14, 2, 15, 2))
sketch5.addConstraint(Sketcher.Constraint("Coincident", 15, 1, 8, 1))
sketch5.addConstraint(Sketcher.Constraint("Coincident", 16, 2, 17, 1))
sketch5.addConstraint(Sketcher.Constraint("Coincident", 17, 2, 18, 1))
sketch5.addConstraint(Sketcher.Constraint("Coincident", 18, 2, 19, 1))
sketch5.addConstraint(Sketcher.Constraint("Coincident", 19, 2, 20, 2))
sketch5.addConstraint(Sketcher.Constraint("Coincident", 20, 1, 21, 1))
sketch5.addConstraint(Sketcher.Constraint("Coincident", 21, 2, 22, 1))
sketch5.addConstraint(Sketcher.Constraint("Coincident", 22, 2, 23, 1))
sketch5.addConstraint(Sketcher.Constraint("Coincident", 23, 2, 16, 1))
sketch5.addConstraint(Sketcher.Constraint("Coincident", 24, 2, 25, 1))
sketch5.addConstraint(Sketcher.Constraint("Coincident", 25, 2, 26, 1))
sketch5.addConstraint(Sketcher.Constraint("Coincident", 26, 2, 27, 1))
sketch5.addConstraint(Sketcher.Constraint("Coincident", 27, 2, 28, 1))
sketch5.addConstraint(Sketcher.Constraint("Coincident", 28, 2, 29, 1))
sketch5.addConstraint(Sketcher.Constraint("Coincident", 29, 2, 30, 1))
sketch5.addConstraint(Sketcher.Constraint("Coincident", 30, 2, 31, 2))
sketch5.addConstraint(Sketcher.Constraint("Coincident", 31, 1, 24, 1))
sketch5.addConstraint(Sketcher.Constraint("Horizontal", 0))
sketch5.addConstraint(Sketcher.Constraint("Vertical", 2))
sketch5.addConstraint(Sketcher.Constraint("Vertical", 6))
sketch5.addConstraint(Sketcher.Constraint("Vertical", 25))
sketch5.addConstraint(Sketcher.Constraint("Horizontal", 27))
sketch5.addConstraint(Sketcher.Constraint("Vertical", 29))
sketch5.addConstraint(Sketcher.Constraint("Coincident", 15, 3, 4, 3))
sketch5.addConstraint(Sketcher.Constraint("Coincident", 31, 3, 20, 3))
sketch5.addConstraint(Sketcher.Constraint("DistanceX", 0, 1, 0, 2, 1.0))
sketch5.addConstraint(Sketcher.Constraint("DistanceX", 27, 1, 27, 2, 1.0))
sketch5.addConstraint(Sketcher.Constraint("DistanceY", 2, 1, 2, 2, 2.0))
sketch5.addConstraint(Sketcher.Constraint("DistanceY", 6, 2, 6, 1, 2.0))
sketch5.addConstraint(Sketcher.Constraint("DistanceY", 25, 2, 25, 1, 2.0))
sketch5.addConstraint(Sketcher.Constraint("DistanceY", 29, 1, 29, 2, 2.0))
sketch5.addConstraint(Sketcher.Constraint("Distance", 9, 2.0))
sketch5.addConstraint(Sketcher.Constraint("Distance", 11, 1.0))
sketch5.addConstraint(Sketcher.Constraint("Distance", 13, 2.0))
sketch5.addConstraint(Sketcher.Constraint("Distance", 16, 1.0))
sketch5.addConstraint(Sketcher.Constraint("Distance", 18, 2.0))
sketch5.addConstraint(Sketcher.Constraint("Distance", 22, 2.0))
sketch5.addConstraint(Sketcher.Constraint("DistanceY", 0, 2, 4, 3, 2.999999))
sketch5.addConstraint(Sketcher.Constraint("DistanceY", 0, 2, 31, 3, 2.999999))
sketch5.addConstraint(Sketcher.Constraint("DistanceX", 1, 2, 0, 2, 1.0))
sketch5.addConstraint(Sketcher.Constraint("DistanceY", 0, 2, 1, 2, 2.0))
sketch5.addConstraint(Sketcher.Constraint("DistanceX", 5, 2, 2, 2, 1.0))
sketch5.addConstraint(Sketcher.Constraint("DistanceY", 1, 2, 5, 2, 2.0))
sketch5.addConstraint(Sketcher.Constraint("DistanceX", 9, 2, 10, 2, 2.0))
sketch5.addConstraint(Sketcher.Constraint("DistanceY", 9, 2, 10, 2, 1.0))
sketch5.addConstraint(Sketcher.Constraint("DistanceX", 12, 2, 11, 2, 2.0))
sketch5.addConstraint(Sketcher.Constraint("DistanceY", 12, 2, 11, 2, 1.0))
sketch5.addConstraint(Sketcher.Constraint("DistanceX", 13, 2, 9, 2, 2.0))
sketch5.addConstraint(Sketcher.Constraint("DistanceY", 13, 2, 9, 2, 1.0))
sketch5.addConstraint(Sketcher.Constraint("DistanceX", 16, 2, 17, 2, 2.0))
sketch5.addConstraint(Sketcher.Constraint("DistanceY", 17, 2, 16, 2, 1.0))
sketch5.addConstraint(Sketcher.Constraint("DistanceX", 17, 2, 21, 2, 2.0))
sketch5.addConstraint(Sketcher.Constraint("DistanceY", 21, 2, 17, 2, 1.0))
sketch5.addConstraint(Sketcher.Constraint("DistanceX", 23, 2, 22, 2, 2.0))
sketch5.addConstraint(Sketcher.Constraint("DistanceY", 22, 2, 23, 2, 1.0))
sketch5.addConstraint(Sketcher.Constraint("DistanceX", 26, 2, 25, 2, 1.0))
sketch5.addConstraint(Sketcher.Constraint("DistanceY", 26, 2, 25, 2, 2.0))
sketch5.addConstraint(Sketcher.Constraint("DistanceX", 25, 2, 28, 2, 1.0))
sketch5.addConstraint(Sketcher.Constraint("DistanceY", 28, 2, 24, 2, 2.0))
sketch5.addConstraint(Sketcher.Constraint("DistanceX", 8, 2, 9, 2, 1.2))
sketch5.addConstraint(Sketcher.Constraint("DistanceX", 17, 2, 18, 2, 1.2))
sketch5.addConstraint(Sketcher.Constraint("DistanceX", 0, 2, -1, 1, 120.15))
sketch5.addConstraint(Sketcher.Constraint("DistanceX", 8, 2, -1, 1, 111.02))
sketch5.addConstraint(Sketcher.Constraint("DistanceX", -1, 1, 16, 2, 107.82))
sketch5.addConstraint(Sketcher.Constraint("DistanceX", -1, 1, 24, 2, 121.15))
sketch5.addConstraint(Sketcher.Constraint("Radius", 15, 48.65002))
sketch5.addConstraint(Sketcher.Constraint("Radius", 20, 48.65002))
sketch5.addConstraint(Sketcher.Constraint("DistanceY", 2, 2, 8, 2, 30.39))
sketch5.addConstraint(Sketcher.Constraint("DistanceY", 31, 3, 16, 2, 33.990001))
sketch5.addConstraint(Sketcher.Constraint("DistanceY", 24, 2, 18, 2, 30.39))
sketch5.addConstraint(Sketcher.Constraint("Radius", 4, 48.650017))
sketch5.addConstraint(Sketcher.Constraint("Radius", 31, 48.650017))
sketch5.addConstraint(Sketcher.Constraint("DistanceY", 15, 1, -1, 1, 32.871299))
sketch5.addConstraint(Sketcher.Constraint("DistanceY", 19, 2, -1, 1, 32.871299))
sketch5.addConstraint(Sketcher.Constraint("DistanceY", 3, 2, 4, 1, 0.611901))
sketch5.addConstraint(Sketcher.Constraint("DistanceY", 31, 1, 30, 2, 0.611901))
sketch5.addConstraint(Sketcher.Constraint("DistanceY", 4, 3, -1, 1, 58.764768))
sketch5.addConstraint(Sketcher.Constraint("DistanceY", 4, 1, -1, 1, 54.155572))
sketch5.addConstraint(Sketcher.Constraint("DistanceX", 14, 2, -1, 1, 109.01045))
sketch5.addConstraint(Sketcher.Constraint("DistanceX", 15, 1, -1, 1, 108.68678))
sketch5.addConstraint(Sketcher.Constraint("DistanceX", -1, 1, 19, 2, 108.68678))
sketch5.addConstraint(Sketcher.Constraint("DistanceX", -1, 1, 20, 1, 109.01045))
sketch5.addConstraint(Sketcher.Constraint("DistanceY", 30, 2, -1, 1, 54.155572))
pad3 = body.newObject("PartDesign::Pad", "Pad002")
pad3.Profile = sketch5
pad3.Length = 0.6

sketch6 = body.newObject("Sketcher::SketchObject", "Sketch005")
sketch6.AttachmentSupport = (doc.getObject("XY_Plane"), [""])
sketch6.MapMode = "FlatFace"
sketch6.AttachmentOffset = App.Placement(Vector(0, 0, 0.6), App.Rotation())
sketch6.addGeometry(Part.LineSegment(Vector(-112.8, -41, 0), Vector(-103.8, -41.9, 0)), False)
sketch6.addGeometry(Part.ArcOfCircle(Part.Circle(Vector(-103.6, -39.9, 0), Vector(0, 0, 1), 2), math.radians(-96), math.radians(53)), False)
sketch6.addGeometry(Part.LineSegment(Vector(-102.4, -38.3, 0), Vector(-109, -33.4, 0)), False)
sketch6.addGeometry(Part.ArcOfCircle(Part.Circle(Vector(-67.5, -58.8, 0), Vector(0, 0, 1), 48.7), math.radians(148.57), math.radians(158.59)), False)
sketch6.addGeometry(Part.LineSegment(Vector(109, -33.4, 0), Vector(102.4, -38.3, 0)), False)
sketch6.addGeometry(Part.ArcOfCircle(Part.Circle(Vector(103.6, -39.9, 0), Vector(0, 0, 1), 2), math.radians(127), math.radians(276)), False)
sketch6.addGeometry(Part.LineSegment(Vector(103.8, -41.9, 0), Vector(112.8, -41, 0)), False)
sketch6.addGeometry(Part.ArcOfCircle(Part.Circle(Vector(67.5, -58.8, 0), Vector(0, 0, 1), 48.7), math.radians(21.41), math.radians(31.43)), False)
sketch6.addConstraint(Sketcher.Constraint("Tangent", 0, 2, 1, 1))
sketch6.addConstraint(Sketcher.Constraint("Tangent", 1, 2, 2, 1))
sketch6.addConstraint(Sketcher.Constraint("Coincident", 2, 2, 3, 1))
sketch6.addConstraint(Sketcher.Constraint("Coincident", 3, 2, 0, 1))
sketch6.addConstraint(Sketcher.Constraint("Tangent", 4, 2, 5, 1))
sketch6.addConstraint(Sketcher.Constraint("Tangent", 5, 2, 6, 1))
sketch6.addConstraint(Sketcher.Constraint("Coincident", 6, 2, 7, 1))
sketch6.addConstraint(Sketcher.Constraint("Coincident", 7, 2, 4, 1))
sketch6.addConstraint(Sketcher.Constraint("Equal", 1, 5))
sketch6.addConstraint(Sketcher.Constraint("Equal", 3, 7))
sketch6.addConstraint(Sketcher.Constraint("Symmetric", 1, 3, 5, 3, -2))
sketch6.addConstraint(Sketcher.Constraint("Symmetric", 3, 3, 7, 3, -2))
sketch6.addConstraint(Sketcher.Constraint("Horizontal", 1, 2, 4, 2))
sketch6.addConstraint(Sketcher.Constraint("Horizontal", 0, 2, 5, 2))
sketch6.addConstraint(Sketcher.Constraint("Radius", 1, 2.0))
sketch6.addConstraint(Sketcher.Constraint("Radius", 3, 48.65))
sketch6.addConstraint(Sketcher.Constraint("Distance", 0, 9.0))
sketch6.addConstraint(Sketcher.Constraint("DistanceX", 3, 3, 7, 3, 135.0))
sketch6.addConstraint(Sketcher.Constraint("DistanceX", 1, 3, 1, 2, 1.2))
sketch6.addConstraint(Sketcher.Constraint("DistanceX", 1, 3, -1, 1, 103.636901))
sketch6.addConstraint(Sketcher.Constraint("DistanceY", 0, 2, 1, 3, 1.989799))
sketch6.addConstraint(Sketcher.Constraint("DistanceY", 1, 3, -1, 1, 39.923584))
pocket3 = body.newObject("PartDesign::Pocket", "Pocket002")
pocket3.Profile = sketch6
pocket3.Type = "ThroughAll"
pocket3.Midplane = True
doc.recompute()

fillet2 = body.newObject("PartDesign::Fillet", "Fillet001")
fillet2.Base = (pocket3, edges_at(pocket3, [
    (109.01, -33.393, 0.3),
    (-112.793, -41.006, 0.3),
    (-109.01, -33.393, 0.3),
    (-106.22, -25.975, 0.3),
    (-107.42, -27.575, 0.3),
    (-105.82, -28.775, 0.3),
    (-115.931, -54.156, 0.3),
    (-118.15, -61.765, 0.3),
    (-116.15, -59.765, 0.3),
    (-118.15, -59.765, 0.3),
    (118.15, -61.765, 0.3),
    (118.15, -59.765, 0.3),
    (116.15, -59.765, 0.3),
    (105.82, -28.775, 0.3),
    (107.42, -27.575, 0.3),
    (106.22, -25.975, 0.3),
    (116.15, -70.49, 0.3),
    (115.931, -54.156, 0.3),
    (112.793, -41.006, 0.3),
    (99.064, -19.766, 0.3),
    (-99.064, -19.766, 0.3),
    (-116.15, -70.49, 0.3),
]))
fillet2.Radius = 0.5
doc.recompute()

fillet3 = body.newObject("PartDesign::Fillet", "Fillet002")
fillet3.Base = (fillet2, edges_at(fillet2, [
    (-122.15, -57.765, 0.3),
    (-122.15, -59.765, 0.3),
    (-121.15, -61.765, 0.3),
    (-108.62, -24.175, 0.3),
    (-110.62, -25.175, 0.3),
    (-111.82, -26.775, 0.3),
    (121.15, -61.765, 0.3),
    (122.15, -59.765, 0.3),
    (122.15, -57.765, 0.3),
    (111.82, -26.775, 0.3),
    (110.62, -25.175, 0.3),
    (108.62, -24.175, 0.3),
]))
fillet3.Radius = 1.5

doc.recompute()
